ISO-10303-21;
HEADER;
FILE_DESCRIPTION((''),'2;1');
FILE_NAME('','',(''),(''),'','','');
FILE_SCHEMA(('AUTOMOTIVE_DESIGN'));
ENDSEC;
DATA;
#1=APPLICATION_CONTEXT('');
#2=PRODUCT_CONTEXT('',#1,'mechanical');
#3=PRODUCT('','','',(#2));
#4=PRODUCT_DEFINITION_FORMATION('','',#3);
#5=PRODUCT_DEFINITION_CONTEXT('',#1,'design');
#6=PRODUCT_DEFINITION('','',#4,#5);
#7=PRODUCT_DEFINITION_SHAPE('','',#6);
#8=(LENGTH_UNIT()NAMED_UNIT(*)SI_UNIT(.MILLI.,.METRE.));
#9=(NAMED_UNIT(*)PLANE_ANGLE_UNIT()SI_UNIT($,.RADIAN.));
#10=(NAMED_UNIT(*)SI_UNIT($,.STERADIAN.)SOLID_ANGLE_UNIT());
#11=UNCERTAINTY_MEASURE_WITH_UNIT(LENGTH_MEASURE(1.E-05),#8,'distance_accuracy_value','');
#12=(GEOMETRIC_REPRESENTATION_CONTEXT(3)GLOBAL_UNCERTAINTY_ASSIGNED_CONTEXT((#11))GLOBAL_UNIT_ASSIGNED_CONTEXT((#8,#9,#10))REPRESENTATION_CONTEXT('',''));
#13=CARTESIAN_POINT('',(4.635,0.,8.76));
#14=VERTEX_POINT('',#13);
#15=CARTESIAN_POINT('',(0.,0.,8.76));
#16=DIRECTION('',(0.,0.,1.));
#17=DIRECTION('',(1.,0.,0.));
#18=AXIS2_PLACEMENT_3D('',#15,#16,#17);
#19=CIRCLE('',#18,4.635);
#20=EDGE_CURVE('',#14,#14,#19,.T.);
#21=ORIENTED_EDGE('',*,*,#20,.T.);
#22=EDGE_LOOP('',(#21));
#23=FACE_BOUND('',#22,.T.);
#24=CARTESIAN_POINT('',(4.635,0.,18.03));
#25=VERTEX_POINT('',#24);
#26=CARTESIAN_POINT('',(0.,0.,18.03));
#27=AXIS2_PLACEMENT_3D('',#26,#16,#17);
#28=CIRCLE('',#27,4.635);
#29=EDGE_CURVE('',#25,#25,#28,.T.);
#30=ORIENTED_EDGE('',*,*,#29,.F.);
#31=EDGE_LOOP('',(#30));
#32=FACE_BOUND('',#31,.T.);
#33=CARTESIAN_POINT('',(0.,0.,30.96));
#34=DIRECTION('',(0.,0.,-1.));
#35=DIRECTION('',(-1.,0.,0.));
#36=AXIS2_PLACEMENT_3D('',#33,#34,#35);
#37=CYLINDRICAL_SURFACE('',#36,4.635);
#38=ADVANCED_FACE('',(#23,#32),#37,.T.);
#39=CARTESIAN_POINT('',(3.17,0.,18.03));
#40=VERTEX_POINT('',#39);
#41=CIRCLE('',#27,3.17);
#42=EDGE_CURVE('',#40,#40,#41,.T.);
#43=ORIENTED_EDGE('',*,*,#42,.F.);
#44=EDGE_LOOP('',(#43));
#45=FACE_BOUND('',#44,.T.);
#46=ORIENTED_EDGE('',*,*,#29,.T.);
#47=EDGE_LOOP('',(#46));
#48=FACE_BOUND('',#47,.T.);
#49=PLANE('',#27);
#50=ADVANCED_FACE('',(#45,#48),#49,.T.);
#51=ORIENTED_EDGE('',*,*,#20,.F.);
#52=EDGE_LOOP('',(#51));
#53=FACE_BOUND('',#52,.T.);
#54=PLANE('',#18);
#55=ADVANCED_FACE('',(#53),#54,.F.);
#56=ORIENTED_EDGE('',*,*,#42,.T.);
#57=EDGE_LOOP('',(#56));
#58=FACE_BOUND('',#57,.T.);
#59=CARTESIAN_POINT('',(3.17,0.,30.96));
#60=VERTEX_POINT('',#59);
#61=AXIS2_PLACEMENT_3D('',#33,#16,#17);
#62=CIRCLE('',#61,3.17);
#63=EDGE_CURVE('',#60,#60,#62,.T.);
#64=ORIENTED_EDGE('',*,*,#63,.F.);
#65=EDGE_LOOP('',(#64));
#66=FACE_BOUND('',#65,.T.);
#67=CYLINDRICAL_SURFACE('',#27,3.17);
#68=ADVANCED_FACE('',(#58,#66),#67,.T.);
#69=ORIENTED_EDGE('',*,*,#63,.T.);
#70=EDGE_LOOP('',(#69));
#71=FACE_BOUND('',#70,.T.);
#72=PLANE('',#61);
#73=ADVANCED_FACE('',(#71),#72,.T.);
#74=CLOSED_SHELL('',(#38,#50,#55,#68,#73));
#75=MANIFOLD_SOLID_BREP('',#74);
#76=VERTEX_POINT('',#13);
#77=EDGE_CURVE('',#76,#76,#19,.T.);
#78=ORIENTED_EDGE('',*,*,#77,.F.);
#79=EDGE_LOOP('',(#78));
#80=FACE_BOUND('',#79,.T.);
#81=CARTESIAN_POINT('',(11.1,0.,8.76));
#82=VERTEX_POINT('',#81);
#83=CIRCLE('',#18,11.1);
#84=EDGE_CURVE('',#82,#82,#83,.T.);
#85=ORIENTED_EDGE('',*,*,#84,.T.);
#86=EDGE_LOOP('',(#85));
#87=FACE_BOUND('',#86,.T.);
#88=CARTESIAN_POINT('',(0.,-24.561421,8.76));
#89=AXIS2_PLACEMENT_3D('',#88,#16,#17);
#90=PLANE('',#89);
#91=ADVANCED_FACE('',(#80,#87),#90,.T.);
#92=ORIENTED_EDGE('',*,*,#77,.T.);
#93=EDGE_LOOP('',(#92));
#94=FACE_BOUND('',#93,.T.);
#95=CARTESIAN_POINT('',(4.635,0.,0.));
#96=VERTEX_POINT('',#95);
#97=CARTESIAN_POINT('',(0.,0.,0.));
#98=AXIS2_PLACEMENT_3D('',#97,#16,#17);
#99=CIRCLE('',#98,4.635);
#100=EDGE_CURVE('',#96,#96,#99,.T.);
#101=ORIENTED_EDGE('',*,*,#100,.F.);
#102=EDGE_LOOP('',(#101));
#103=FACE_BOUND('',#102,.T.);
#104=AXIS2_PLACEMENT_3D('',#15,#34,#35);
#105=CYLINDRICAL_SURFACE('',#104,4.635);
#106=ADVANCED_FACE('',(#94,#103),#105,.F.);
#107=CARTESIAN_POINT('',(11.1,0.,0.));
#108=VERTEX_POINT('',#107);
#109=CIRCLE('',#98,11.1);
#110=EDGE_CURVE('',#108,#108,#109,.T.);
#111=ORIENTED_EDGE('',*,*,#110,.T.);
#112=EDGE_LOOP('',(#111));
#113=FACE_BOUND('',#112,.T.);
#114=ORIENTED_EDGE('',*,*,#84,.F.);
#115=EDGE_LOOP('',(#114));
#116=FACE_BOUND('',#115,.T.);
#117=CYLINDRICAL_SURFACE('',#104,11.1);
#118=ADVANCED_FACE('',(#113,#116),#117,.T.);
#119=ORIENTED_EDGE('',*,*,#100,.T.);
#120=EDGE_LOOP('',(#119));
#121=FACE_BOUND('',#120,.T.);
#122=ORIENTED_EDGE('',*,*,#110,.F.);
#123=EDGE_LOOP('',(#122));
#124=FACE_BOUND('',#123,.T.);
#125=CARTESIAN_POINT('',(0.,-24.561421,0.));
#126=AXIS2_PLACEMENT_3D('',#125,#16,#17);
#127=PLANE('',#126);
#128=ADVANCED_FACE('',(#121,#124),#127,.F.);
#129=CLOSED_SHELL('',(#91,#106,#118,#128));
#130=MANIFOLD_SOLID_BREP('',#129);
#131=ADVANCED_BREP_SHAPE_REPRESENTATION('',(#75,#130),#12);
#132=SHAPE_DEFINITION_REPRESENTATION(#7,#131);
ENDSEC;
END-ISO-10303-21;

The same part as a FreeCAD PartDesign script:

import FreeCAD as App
import Part
import Sketcher

doc = App.newDocument("Part")
body = doc.addObject("PartDesign::Body", "Body")

# Sketch on XY plane
sketch1 = doc.addObject("Sketcher::SketchObject", "Sketch")
body.addObject(sketch1)
sketch1.AttachmentSupport = (doc.XY_Plane, [""])
sketch1.MapMode = "FlatFace"
sketch1.addGeometry(Part.Circle(App.Vector(0, 0, 0), App.Vector(0, 0, 1), 11.1), False)
sketch1.addGeometry(Part.Circle(App.Vector(0, 0, 0), App.Vector(0, 0, 1), 4.635), False)
sketch1.addConstraint(Sketcher.Constraint("Coincident", 0, 3, -1, 1))
sketch1.addConstraint(Sketcher.Constraint("Coincident", 1, 3, -1, 1))
sketch1.addConstraint(Sketcher.Constraint("Diameter", 0, 22.2))
sketch1.addConstraint(Sketcher.Constraint("Diameter", 1, 9.27))
pad1 = doc.addObject("PartDesign::Pad", "Pad")
body.addObject(pad1)
pad1.Profile = sketch1
pad1.Length = 8.76
body2 = doc.addObject("PartDesign::Body", "Body001")

# Sketch on XY plane
sketch2 = doc.addObject("Sketcher::SketchObject", "Sketch001")
body2.addObject(sketch2)
sketch2.AttachmentSupport = (doc.getObject("XY_Plane001"), [""])
sketch2.MapMode = "FlatFace"
sketch2.AttachmentOffset = App.Placement(App.Vector(0, 0, 8.76), App.Rotation())
sketch2.addGeometry(Part.Circle(App.Vector(0, 0, 0), App.Vector(0, 0, 1), 4.635), False)
sketch2.addConstraint(Sketcher.Constraint("Coincident", 0, 3, -1, 1))
sketch2.addConstraint(Sketcher.Constraint("Diameter", 0, 9.27))
pad2 = doc.addObject("PartDesign::Pad", "Pad001")
body2.addObject(pad2)
pad2.Profile = sketch2
pad2.Length = 22.2

# Sketch on XY plane
sketch3 = doc.addObject("Sketcher::SketchObject", "Sketch002")
body2.addObject(sketch3)
sketch3.AttachmentSupport = (doc.getObject("XY_Plane001"), [""])
sketch3.MapMode = "FlatFace"
sketch3.AttachmentOffset = App.Placement(App.Vector(0, 0, 18.03), App.Rotation())
sketch3.addGeometry(Part.Circle(App.Vector(0, 0, 0), App.Vector(0, 0, 1), 4.635), False)
sketch3.addGeometry(Part.Circle(App.Vector(0, 0, 0), App.Vector(0, 0, 1), 3.17), False)
sketch3.addConstraint(Sketcher.Constraint("Coincident", 0, 3, -1, 1))
sketch3.addConstraint(Sketcher.Constraint("Coincident", 1, 3, -1, 1))
sketch3.addConstraint(Sketcher.Constraint("Diameter", 0, 9.27))
sketch3.addConstraint(Sketcher.Constraint("Diameter", 1, 6.34))
pocket1 = doc.addObject("PartDesign::Pocket", "Pocket")
body2.addObject(pocket1)
pocket1.Profile = sketch3
pocket1.Length = 12.93
pocket1.Reversed = True

doc.recompute()
